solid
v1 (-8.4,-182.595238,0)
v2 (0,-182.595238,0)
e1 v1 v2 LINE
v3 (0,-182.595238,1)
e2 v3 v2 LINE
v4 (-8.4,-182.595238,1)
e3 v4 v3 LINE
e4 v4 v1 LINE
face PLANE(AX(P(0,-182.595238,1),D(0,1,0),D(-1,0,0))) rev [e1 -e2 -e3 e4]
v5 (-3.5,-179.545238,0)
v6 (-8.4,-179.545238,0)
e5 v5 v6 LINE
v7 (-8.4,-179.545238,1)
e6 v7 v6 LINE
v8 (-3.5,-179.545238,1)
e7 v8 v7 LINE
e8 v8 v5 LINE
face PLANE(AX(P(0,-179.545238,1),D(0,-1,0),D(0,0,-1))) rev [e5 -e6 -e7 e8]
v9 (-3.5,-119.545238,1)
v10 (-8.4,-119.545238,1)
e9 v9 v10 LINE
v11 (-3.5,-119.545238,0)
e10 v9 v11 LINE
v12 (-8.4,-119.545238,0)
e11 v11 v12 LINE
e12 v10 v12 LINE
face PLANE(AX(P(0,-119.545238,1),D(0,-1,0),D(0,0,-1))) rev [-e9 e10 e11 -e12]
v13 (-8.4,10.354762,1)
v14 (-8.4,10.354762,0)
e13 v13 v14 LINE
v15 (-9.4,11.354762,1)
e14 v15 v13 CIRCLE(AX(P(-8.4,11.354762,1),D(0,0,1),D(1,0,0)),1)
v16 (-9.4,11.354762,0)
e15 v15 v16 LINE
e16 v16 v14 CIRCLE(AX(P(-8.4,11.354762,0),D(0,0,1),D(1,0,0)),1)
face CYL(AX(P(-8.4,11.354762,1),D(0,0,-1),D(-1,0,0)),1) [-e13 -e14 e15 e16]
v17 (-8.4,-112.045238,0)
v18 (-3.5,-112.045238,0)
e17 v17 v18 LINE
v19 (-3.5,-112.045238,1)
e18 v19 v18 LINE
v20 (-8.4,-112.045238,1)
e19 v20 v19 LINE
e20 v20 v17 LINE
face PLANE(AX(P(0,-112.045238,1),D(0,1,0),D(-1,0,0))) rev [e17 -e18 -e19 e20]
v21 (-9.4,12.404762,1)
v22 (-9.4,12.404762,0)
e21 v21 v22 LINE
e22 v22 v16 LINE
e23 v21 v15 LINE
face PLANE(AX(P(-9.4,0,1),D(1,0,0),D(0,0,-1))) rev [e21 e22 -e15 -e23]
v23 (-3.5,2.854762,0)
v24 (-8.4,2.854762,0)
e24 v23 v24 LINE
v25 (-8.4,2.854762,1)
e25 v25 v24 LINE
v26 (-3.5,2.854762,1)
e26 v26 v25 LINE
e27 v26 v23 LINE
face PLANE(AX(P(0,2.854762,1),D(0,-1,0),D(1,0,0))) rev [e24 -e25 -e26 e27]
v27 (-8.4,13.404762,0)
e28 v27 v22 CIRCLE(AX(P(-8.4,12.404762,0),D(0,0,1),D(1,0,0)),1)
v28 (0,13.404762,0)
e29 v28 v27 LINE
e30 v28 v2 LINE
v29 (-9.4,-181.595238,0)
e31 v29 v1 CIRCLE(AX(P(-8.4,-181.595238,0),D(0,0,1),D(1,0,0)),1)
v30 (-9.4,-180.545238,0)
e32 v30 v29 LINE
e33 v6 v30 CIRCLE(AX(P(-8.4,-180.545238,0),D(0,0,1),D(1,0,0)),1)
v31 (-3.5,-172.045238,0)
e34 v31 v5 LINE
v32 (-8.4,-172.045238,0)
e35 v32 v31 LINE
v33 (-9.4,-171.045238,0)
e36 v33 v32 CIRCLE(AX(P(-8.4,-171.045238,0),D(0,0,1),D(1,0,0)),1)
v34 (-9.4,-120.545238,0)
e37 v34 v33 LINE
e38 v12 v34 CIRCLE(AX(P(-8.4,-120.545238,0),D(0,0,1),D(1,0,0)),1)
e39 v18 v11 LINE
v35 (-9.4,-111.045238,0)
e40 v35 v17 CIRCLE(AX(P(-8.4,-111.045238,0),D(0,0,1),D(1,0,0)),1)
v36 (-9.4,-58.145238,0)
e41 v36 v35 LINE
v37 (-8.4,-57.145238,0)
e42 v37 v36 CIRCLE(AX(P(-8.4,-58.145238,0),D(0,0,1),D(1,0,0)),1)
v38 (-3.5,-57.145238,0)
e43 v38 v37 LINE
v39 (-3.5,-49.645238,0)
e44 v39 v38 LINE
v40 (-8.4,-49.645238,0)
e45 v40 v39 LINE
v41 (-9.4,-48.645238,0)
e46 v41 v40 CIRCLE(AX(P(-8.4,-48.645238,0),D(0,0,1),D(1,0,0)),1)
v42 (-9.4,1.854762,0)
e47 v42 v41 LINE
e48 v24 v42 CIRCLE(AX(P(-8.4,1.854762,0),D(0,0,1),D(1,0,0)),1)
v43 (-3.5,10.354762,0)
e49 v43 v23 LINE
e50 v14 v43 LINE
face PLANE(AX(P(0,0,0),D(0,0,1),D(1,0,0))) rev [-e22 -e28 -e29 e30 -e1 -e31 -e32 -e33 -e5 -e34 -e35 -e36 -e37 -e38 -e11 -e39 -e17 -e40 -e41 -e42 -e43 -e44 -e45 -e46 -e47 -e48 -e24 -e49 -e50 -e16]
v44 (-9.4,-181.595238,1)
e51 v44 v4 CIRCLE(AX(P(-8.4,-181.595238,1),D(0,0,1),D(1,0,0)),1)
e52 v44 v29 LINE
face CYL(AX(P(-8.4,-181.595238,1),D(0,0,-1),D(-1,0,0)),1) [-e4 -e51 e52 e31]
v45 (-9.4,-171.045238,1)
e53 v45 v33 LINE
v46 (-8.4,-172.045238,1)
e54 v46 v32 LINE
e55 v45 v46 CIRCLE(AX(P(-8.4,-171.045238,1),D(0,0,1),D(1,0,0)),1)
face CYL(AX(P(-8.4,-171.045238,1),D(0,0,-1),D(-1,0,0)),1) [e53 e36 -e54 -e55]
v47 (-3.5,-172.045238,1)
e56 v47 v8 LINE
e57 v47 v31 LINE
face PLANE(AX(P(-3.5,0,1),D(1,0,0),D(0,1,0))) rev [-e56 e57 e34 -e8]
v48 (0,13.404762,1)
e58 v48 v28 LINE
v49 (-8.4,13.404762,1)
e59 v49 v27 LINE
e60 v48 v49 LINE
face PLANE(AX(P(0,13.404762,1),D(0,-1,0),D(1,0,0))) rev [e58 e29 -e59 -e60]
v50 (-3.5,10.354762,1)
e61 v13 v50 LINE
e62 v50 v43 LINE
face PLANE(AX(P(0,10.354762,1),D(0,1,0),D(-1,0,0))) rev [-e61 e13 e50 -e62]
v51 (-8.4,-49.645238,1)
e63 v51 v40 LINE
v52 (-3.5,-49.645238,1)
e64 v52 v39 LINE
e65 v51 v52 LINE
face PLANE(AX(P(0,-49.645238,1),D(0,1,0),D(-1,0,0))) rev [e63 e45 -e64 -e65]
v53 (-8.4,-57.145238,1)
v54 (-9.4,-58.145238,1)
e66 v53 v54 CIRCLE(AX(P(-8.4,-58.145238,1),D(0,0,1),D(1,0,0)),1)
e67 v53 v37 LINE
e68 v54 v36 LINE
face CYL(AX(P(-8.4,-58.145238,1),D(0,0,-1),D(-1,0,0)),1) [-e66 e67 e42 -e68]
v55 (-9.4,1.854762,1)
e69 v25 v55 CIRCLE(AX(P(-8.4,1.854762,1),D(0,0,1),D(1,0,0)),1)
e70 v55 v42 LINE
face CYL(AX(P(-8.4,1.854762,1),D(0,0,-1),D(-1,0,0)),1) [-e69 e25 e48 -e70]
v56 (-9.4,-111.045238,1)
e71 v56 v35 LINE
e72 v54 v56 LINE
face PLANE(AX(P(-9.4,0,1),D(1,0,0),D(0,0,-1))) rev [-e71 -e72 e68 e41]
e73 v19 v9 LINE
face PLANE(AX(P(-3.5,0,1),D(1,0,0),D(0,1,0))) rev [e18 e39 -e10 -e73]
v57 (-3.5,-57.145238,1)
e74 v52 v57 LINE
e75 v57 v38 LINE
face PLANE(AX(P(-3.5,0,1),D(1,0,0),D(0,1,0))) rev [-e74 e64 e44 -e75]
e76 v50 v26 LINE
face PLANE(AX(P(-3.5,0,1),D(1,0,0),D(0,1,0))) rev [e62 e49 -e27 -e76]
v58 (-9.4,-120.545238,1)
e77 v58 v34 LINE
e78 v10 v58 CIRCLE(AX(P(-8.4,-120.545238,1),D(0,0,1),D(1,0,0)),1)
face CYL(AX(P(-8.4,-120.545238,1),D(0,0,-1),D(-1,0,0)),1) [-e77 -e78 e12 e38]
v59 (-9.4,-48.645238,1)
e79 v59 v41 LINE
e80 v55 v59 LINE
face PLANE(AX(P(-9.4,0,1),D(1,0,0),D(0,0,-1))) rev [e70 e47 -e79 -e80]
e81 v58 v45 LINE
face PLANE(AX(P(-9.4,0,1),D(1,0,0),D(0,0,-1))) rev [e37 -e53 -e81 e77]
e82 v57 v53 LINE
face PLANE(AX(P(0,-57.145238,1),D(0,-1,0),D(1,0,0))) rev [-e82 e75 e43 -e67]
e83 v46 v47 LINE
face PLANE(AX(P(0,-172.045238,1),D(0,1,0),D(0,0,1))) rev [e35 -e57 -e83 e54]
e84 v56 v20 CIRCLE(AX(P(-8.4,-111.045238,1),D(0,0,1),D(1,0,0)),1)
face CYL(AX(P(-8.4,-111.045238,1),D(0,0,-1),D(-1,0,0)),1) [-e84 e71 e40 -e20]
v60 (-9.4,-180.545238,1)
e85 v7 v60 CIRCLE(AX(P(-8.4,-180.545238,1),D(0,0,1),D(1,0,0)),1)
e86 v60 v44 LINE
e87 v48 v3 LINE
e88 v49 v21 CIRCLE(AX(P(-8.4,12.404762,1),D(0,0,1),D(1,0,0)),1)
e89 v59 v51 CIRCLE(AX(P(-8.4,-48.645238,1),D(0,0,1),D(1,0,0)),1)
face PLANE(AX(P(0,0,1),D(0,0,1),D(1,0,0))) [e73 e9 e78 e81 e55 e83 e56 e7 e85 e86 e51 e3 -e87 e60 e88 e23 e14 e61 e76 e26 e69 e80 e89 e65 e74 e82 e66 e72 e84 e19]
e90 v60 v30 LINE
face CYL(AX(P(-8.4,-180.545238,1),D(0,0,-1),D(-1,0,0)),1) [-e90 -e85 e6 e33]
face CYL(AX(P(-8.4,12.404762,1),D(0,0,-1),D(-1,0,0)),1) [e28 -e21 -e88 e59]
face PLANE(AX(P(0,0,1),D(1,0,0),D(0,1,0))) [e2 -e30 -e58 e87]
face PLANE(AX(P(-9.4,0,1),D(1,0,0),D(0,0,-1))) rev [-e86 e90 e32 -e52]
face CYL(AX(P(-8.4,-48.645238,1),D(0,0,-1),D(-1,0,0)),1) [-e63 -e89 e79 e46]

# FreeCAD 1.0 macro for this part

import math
import FreeCAD as App
import Part
import Sketcher
from FreeCAD import Vector

doc = App.newDocument("Part")
body = doc.addObject("PartDesign::Body", "Body")

# Sketch on XY plane
sketch1 = body.newObject("Sketcher::SketchObject", "Sketch")
sketch1.AttachmentSupport = (doc.getObject("XY_Plane"), [""])
sketch1.MapMode = "FlatFace"
sketch1.addGeometry([
    Part.LineSegment(Vector(0, -182.6, 0), Vector(0, 13.4, 0)),  # 0
    Part.LineSegment(Vector(0, 13.4, 0), Vector(-8.4, 13.4, 0)),  # 1
    Part.ArcOfCircle(Part.Circle(Vector(-8.4, 12.4, 0), Vector(0, 0, 1), 1), math.radians(90), math.radians(180)),  # 2
    Part.LineSegment(Vector(-9.4, 12.4, 0), Vector(-9.4, 11.4, 0)),  # 3
    Part.ArcOfCircle(Part.Circle(Vector(-8.4, 11.4, 0), Vector(0, 0, 1), 1), math.radians(-180), math.radians(-90)),  # 4
    Part.LineSegment(Vector(-8.4, 10.4, 0), Vector(-3.5, 10.4, 0)),  # 5
    Part.LineSegment(Vector(-3.5, 10.4, 0), Vector(-3.5, 2.9, 0)),  # 6
    Part.LineSegment(Vector(-3.5, 2.9, 0), Vector(-8.4, 2.9, 0)),  # 7
    Part.ArcOfCircle(Part.Circle(Vector(-8.4, 1.9, 0), Vector(0, 0, 1), 1), math.radians(90), math.radians(180)),  # 8
    Part.LineSegment(Vector(-9.4, 1.9, 0), Vector(-9.4, -48.6, 0)),  # 9
    Part.ArcOfCircle(Part.Circle(Vector(-8.4, -48.6, 0), Vector(0, 0, 1), 1), math.radians(-180), math.radians(-90)),  # 10
    Part.LineSegment(Vector(-8.4, -49.6, 0), Vector(-3.5, -49.6, 0)),  # 11
    Part.LineSegment(Vector(-3.5, -49.6, 0), Vector(-3.5, -57.1, 0)),  # 12
    Part.LineSegment(Vector(-3.5, -57.1, 0), Vector(-8.4, -57.1, 0)),  # 13
    Part.ArcOfCircle(Part.Circle(Vector(-8.4, -58.1, 0), Vector(0, 0, 1), 1), math.radians(90), math.radians(180)),  # 14
    Part.LineSegment(Vector(-9.4, -58.1, 0), Vector(-9.4, -111, 0)),  # 15
    Part.ArcOfCircle(Part.Circle(Vector(-8.4, -111, 0), Vector(0, 0, 1), 1), math.radians(-180), math.radians(-90)),  # 16
    Part.LineSegment(Vector(-8.4, -112, 0), Vector(-3.5, -112, 0)),  # 17
    Part.LineSegment(Vector(-3.5, -112, 0), Vector(-3.5, -119.5, 0)),  # 18
    Part.LineSegment(Vector(-3.5, -119.5, 0), Vector(-8.4, -119.5, 0)),  # 19
    Part.ArcOfCircle(Part.Circle(Vector(-8.4, -120.5, 0), Vector(0, 0, 1), 1), math.radians(90), math.radians(180)),  # 20
    Part.LineSegment(Vector(-9.4, -120.5, 0), Vector(-9.4, -171, 0)),  # 21
    Part.ArcOfCircle(Part.Circle(Vector(-8.4, -171, 0), Vector(0, 0, 1), 1), math.radians(-180), math.radians(-90)),  # 22
    Part.LineSegment(Vector(-8.4, -172, 0), Vector(-3.5, -172, 0)),  # 23
    Part.LineSegment(Vector(-3.5, -172, 0), Vector(-3.5, -179.5, 0)),  # 24
    Part.LineSegment(Vector(-3.5, -179.5, 0), Vector(-8.4, -179.5, 0)),  # 25
    Part.ArcOfCircle(Part.Circle(Vector(-8.4, -180.5, 0), Vector(0, 0, 1), 1), math.radians(90), math.radians(180)),  # 26
    Part.LineSegment(Vector(-9.4, -180.5, 0), Vector(-9.4, -181.6, 0)),  # 27
    Part.ArcOfCircle(Part.Circle(Vector(-8.4, -181.6, 0), Vector(0, 0, 1), 1), math.radians(-180), math.radians(-90)),  # 28
    Part.LineSegment(Vector(-8.4, -182.6, 0), Vector(0, -182.6, 0)),  # 29
], False)
sketch1.addConstraint([
    Sketcher.Constraint("Coincident", 0, 2, 1, 1),
    Sketcher.Constraint("Tangent", 1, 2, 2, 1),
    Sketcher.Constraint("Tangent", 2, 2, 3, 1),
    Sketcher.Constraint("Tangent", 3, 2, 4, 1),
    Sketcher.Constraint("Tangent", 4, 2, 5, 1),
    Sketcher.Constraint("Coincident", 5, 2, 6, 1),
    Sketcher.Constraint("Coincident", 6, 2, 7, 1),
    Sketcher.Constraint("Tangent", 7, 2, 8, 1),
    Sketcher.Constraint("Tangent", 8, 2, 9, 1),
    Sketcher.Constraint("Tangent", 9, 2, 10, 1),
    Sketcher.Constraint("Tangent", 10, 2, 11, 1),
    Sketcher.Constraint("Coincident", 11, 2, 12, 1),
    Sketcher.Constraint("Coincident", 12, 2, 13, 1),
    Sketcher.Constraint("Tangent", 13, 2, 14, 1),
    Sketcher.Constraint("Tangent", 14, 2, 15, 1),
    Sketcher.Constraint("Tangent", 15, 2, 16, 1),
    Sketcher.Constraint("Tangent", 16, 2, 17, 1),
    Sketcher.Constraint("Coincident", 17, 2, 18, 1),
    Sketcher.Constraint("Coincident", 18, 2, 19, 1),
    Sketcher.Constraint("Tangent", 19, 2, 20, 1),
    Sketcher.Constraint("Tangent", 20, 2, 21, 1),
    Sketcher.Constraint("Tangent", 21, 2, 22, 1),
    Sketcher.Constraint("Tangent", 22, 2, 23, 1),
    Sketcher.Constraint("Coincident", 23, 2, 24, 1),
    Sketcher.Constraint("Coincident", 24, 2, 25, 1),
    Sketcher.Constraint("Tangent", 25, 2, 26, 1),
    Sketcher.Constraint("Tangent", 26, 2, 27, 1),
    Sketcher.Constraint("Tangent", 27, 2, 28, 1),
    Sketcher.Constraint("Tangent", 28, 2, 29, 1),
    Sketcher.Constraint("Coincident", 29, 2, 0, 1),
    Sketcher.Constraint("Vertical", 0),
    Sketcher.Constraint("Horizontal", 1),
    Sketcher.Constraint("Vertical", 3),
    Sketcher.Constraint("Horizontal", 5),
    Sketcher.Constraint("Vertical", 6),
    Sketcher.Constraint("Horizontal", 7),
    Sketcher.Constraint("Vertical", 9),
    Sketcher.Constraint("Horizontal", 11),
    Sketcher.Constraint("Vertical", 12),
    Sketcher.Constraint("Horizontal", 13),
    Sketcher.Constraint("Vertical", 15),
    Sketcher.Constraint("Horizontal", 17),
    Sketcher.Constraint("Vertical", 18),
    Sketcher.Constraint("Horizontal", 19),
    Sketcher.Constraint("Vertical", 21),
    Sketcher.Constraint("Horizontal", 23),
    Sketcher.Constraint("Vertical", 24),
    Sketcher.Constraint("Horizontal", 25),
    Sketcher.Constraint("Vertical", 27),
    Sketcher.Constraint("Horizontal", 29),
    Sketcher.Constraint("Equal", 2, 4),
    Sketcher.Constraint("Equal", 4, 8),
    Sketcher.Constraint("Equal", 8, 10),
    Sketcher.Constraint("Equal", 10, 14),
    Sketcher.Constraint("Equal", 14, 16),
    Sketcher.Constraint("Equal", 16, 20),
    Sketcher.Constraint("Equal", 20, 22),
    Sketcher.Constraint("Equal", 22, 26),
    Sketcher.Constraint("Equal", 26, 28),
    Sketcher.Constraint("PointOnObject", 0, 2, -2),
    Sketcher.Constraint("Vertical", 4, 3, 8, 3),
    Sketcher.Constraint("Vertical", 10, 3, 14, 3),
    Sketcher.Constraint("Vertical", 16, 3, 20, 3),
    Sketcher.Constraint("Vertical", 22, 3, 26, 3),
    Sketcher.Constraint("Vertical", 6, 2, 11, 2),
    Sketcher.Constraint("Vertical", 12, 2, 17, 2),
    Sketcher.Constraint("Vertical", 18, 2, 23, 2),
    Sketcher.Constraint("Equal", 6, 12),
    Sketcher.Constraint("Equal", 12, 18),
    Sketcher.Constraint("Equal", 9, 21),
    Sketcher.Constraint("Equal", 18, 24),
    Sketcher.Constraint("Equal", 3, 27),
    Sketcher.Constraint("Radius", 2, 1.0),
    Sketcher.Constraint("DistanceY", 0, 1, 0, 2, 196.0),
    Sketcher.Constraint("DistanceX", 1, 2, 1, 1, 8.4),
    Sketcher.Constraint("DistanceX", 5, 1, 5, 2, 4.9),
    Sketcher.Constraint("DistanceY", 6, 2, 6, 1, 7.5),
    Sketcher.Constraint("DistanceY", 9, 2, 9, 1, 50.5),
    Sketcher.Constraint("DistanceY", 15, 2, 15, 1, 52.9),
    Sketcher.Constraint("DistanceY", -1, 1, 2, 3, 12.404762),
])
pad1 = body.newObject("PartDesign::Pad", "Pad")
pad1.Profile = sketch1
pad1.Length = 1

doc.recompute()
